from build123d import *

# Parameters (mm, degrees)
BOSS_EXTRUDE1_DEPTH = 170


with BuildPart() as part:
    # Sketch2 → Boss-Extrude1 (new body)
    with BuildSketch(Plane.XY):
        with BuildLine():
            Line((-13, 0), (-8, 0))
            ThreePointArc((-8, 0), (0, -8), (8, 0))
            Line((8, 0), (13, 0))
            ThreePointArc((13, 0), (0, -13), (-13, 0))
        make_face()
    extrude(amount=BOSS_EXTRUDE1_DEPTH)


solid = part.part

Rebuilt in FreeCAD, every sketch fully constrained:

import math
import FreeCAD as App
import Part
import Sketcher
Q = App.Units.Quantity

doc = App.newDocument("Part")
body = doc.addObject("PartDesign::Body", "Body")

# Sketch on XY plane
sketch1 = doc.addObject("Sketcher::SketchObject", "Sketch")
body.addObject(sketch1)
sketch1.AttachmentSupport = (doc.XY_Plane, [""])
sketch1.MapMode = "FlatFace"
sketch1.addGeometry([
    Part.LineSegment(App.Vector(-8, 0, 0), App.Vector(-13, 0, 0)),
    Part.ArcOfCircle(Part.Circle(App.Vector(0, 0, 0), App.Vector(0, 0, 1), 13), math.radians(180), math.radians(360)),
    Part.LineSegment(App.Vector(13, 0, 0), App.Vector(8, 0, 0)),
    Part.ArcOfCircle(Part.Circle(App.Vector(0, 0, 0), App.Vector(0, 0, 1), 8), math.radians(180), math.radians(360)),
], False)
sketch1.addConstraint([
    Sketcher.Constraint("Coincident", 0, 2, 1, 1),
    Sketcher.Constraint("Coincident", 1, 2, 2, 1),
    Sketcher.Constraint("Coincident", 2, 2, 3, 2),
    Sketcher.Constraint("Coincident", 3, 1, 0, 1),
    Sketcher.Constraint("Horizontal", 0),
    Sketcher.Constraint("Horizontal", 2),
    Sketcher.Constraint("Coincident", 1, 3, -1, 1),
    Sketcher.Constraint("Coincident", 3, 3, -1, 1),
    Sketcher.Constraint("PointOnObject", 0, 2, -1),
    Sketcher.Constraint("PointOnObject", 1, 2, -1),
    Sketcher.Constraint("Radius", 1, Q("13 mm")),
    Sketcher.Constraint("Radius", 3, Q("8 mm")),
])
pad1 = doc.addObject("PartDesign::Pad", "Pad")
body.addObject(pad1)
pad1.Profile = sketch1
pad1.Length = 170

doc.recompute()
